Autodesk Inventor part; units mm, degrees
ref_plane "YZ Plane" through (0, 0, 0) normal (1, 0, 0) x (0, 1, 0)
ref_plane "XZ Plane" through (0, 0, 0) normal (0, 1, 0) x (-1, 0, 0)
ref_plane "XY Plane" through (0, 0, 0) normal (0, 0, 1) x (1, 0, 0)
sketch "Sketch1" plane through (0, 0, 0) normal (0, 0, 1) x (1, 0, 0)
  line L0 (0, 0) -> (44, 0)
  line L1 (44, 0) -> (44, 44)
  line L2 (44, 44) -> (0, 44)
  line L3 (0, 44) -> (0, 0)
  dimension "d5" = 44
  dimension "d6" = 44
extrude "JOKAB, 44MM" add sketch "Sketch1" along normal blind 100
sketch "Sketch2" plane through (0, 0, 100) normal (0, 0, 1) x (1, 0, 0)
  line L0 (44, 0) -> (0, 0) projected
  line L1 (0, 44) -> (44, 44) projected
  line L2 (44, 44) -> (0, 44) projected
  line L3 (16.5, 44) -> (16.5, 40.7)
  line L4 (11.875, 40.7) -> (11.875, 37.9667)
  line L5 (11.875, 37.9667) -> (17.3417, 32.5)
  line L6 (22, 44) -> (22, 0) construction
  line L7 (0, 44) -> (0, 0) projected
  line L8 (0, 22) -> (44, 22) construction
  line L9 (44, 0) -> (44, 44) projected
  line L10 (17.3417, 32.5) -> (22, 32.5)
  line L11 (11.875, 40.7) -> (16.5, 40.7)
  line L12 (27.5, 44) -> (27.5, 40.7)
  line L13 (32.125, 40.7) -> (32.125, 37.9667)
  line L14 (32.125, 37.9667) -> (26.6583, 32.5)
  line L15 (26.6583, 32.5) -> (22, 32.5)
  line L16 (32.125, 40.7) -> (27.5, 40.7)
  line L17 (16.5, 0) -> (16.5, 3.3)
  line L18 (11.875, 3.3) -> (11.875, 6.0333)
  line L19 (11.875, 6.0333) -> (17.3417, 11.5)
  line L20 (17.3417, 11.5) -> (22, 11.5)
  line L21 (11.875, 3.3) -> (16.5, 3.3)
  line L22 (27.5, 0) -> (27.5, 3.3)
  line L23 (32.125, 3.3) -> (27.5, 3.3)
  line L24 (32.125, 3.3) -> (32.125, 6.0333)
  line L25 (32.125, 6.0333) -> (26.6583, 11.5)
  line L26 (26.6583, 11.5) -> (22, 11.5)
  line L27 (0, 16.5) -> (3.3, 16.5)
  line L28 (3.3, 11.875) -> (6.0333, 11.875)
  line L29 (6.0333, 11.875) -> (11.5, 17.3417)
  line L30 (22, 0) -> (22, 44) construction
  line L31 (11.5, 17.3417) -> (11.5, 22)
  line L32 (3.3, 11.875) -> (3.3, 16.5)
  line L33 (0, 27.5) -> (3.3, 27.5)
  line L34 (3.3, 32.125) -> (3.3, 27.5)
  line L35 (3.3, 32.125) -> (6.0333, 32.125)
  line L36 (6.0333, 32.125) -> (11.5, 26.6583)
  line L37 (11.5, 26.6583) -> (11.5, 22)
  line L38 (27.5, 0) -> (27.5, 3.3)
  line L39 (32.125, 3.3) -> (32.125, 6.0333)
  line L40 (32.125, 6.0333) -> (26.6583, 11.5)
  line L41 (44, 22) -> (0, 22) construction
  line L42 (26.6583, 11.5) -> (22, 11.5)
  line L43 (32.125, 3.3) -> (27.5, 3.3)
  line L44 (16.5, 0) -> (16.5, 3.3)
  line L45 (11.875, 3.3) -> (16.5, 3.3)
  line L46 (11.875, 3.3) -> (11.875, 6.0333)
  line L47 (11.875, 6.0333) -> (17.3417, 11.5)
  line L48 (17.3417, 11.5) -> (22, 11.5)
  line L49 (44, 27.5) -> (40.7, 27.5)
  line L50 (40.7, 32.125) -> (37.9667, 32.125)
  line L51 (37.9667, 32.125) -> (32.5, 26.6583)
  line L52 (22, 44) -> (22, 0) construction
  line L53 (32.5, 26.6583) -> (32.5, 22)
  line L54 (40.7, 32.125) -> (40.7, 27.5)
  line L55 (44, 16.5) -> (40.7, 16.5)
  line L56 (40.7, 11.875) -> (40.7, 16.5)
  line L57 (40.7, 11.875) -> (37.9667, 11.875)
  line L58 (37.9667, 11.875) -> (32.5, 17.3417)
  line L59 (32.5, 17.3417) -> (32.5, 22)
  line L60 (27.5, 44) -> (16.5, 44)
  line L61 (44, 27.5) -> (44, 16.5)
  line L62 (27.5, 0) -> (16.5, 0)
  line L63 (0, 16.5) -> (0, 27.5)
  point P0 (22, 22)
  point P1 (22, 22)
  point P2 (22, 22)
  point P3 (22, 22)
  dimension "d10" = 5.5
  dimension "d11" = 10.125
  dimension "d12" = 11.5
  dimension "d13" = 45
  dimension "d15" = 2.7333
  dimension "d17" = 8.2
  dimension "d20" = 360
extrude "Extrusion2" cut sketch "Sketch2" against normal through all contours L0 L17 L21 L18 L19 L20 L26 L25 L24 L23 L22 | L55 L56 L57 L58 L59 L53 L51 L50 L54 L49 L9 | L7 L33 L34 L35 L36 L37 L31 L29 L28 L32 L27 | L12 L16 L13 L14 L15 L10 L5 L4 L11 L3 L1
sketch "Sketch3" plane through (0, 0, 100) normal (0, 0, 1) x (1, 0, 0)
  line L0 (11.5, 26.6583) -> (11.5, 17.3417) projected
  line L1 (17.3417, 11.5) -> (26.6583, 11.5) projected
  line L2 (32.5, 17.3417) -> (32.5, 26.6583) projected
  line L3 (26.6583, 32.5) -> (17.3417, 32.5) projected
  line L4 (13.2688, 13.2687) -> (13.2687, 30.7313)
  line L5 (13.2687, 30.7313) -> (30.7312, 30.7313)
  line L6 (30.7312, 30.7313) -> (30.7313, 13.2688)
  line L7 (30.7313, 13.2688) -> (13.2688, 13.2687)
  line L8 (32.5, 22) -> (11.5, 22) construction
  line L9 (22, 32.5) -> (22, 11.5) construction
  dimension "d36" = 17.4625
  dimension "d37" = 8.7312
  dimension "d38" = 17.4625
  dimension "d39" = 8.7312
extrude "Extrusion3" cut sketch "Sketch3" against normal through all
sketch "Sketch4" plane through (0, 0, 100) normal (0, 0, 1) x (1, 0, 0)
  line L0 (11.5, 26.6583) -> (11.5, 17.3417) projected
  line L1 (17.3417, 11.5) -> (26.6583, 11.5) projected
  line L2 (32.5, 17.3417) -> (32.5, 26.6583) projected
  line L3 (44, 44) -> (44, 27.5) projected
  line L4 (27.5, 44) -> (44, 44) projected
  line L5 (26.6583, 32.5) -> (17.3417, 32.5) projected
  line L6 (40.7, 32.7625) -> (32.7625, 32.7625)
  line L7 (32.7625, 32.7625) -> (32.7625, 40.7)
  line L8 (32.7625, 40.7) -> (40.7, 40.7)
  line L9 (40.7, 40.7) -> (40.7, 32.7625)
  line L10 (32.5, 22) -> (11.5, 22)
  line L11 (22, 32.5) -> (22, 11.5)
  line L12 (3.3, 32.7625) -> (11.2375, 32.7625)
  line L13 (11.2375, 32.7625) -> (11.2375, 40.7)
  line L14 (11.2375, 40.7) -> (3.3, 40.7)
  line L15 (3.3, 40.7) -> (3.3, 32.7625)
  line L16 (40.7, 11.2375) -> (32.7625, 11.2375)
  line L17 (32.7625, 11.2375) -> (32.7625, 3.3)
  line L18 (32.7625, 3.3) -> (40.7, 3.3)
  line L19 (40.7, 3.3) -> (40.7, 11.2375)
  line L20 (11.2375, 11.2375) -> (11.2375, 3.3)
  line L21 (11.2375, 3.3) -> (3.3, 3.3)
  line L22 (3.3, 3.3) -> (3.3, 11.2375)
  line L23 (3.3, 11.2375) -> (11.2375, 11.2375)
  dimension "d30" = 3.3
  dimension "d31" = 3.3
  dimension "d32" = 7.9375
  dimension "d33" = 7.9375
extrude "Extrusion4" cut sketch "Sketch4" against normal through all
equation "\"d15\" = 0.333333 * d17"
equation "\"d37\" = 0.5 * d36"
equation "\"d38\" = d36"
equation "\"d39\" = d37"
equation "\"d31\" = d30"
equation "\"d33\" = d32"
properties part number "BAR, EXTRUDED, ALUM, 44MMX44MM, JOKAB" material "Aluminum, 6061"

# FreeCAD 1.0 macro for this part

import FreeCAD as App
import Part
import Sketcher

V = App.Vector


def add_polygon(sketch, points):
    """Adds a closed chain of lines whose ends are joined by coincident constraints."""
    first, n = sketch.GeometryCount, len(points)
    for a, b in zip(points, points[1:] + points[:1]):
        sketch.addGeometry(Part.LineSegment(App.Vector(*a, 0), App.Vector(*b, 0)), False)
    for i in range(n):
        sketch.addConstraint(Sketcher.Constraint("Coincident", first + i, 2, first + (i + 1) % n, 1))

doc = App.newDocument("Part")
params = doc.addObject("Spreadsheet::Sheet", "Params")
for row, (alias, value) in enumerate([
    ("sketch1_width", "44 mm"),
    ("pad1_length", "100 mm"),
    ("sketch2_width", "11 mm"),
], start=1):
    params.set(f"A{row}", alias)
    params.set(f"B{row}", "=" + value)
    params.setAlias(f"B{row}", alias)

body = doc.addObject("PartDesign::Body", "Body")

# Sketch on XY plane
sketch1 = body.newObject("Sketcher::SketchObject", "Sketch")
sketch1.AttachmentSupport = (doc.getObject("XY_Plane"), [""])
sketch1.MapMode = "FlatFace"
add_polygon(sketch1, [(0, 44), (0, 0), (44, 0), (44, 44)])  # lines 0-3
sketch1.addConstraint(Sketcher.Constraint("Vertical", 0))
sketch1.addConstraint(Sketcher.Constraint("Horizontal", 1))
sketch1.addConstraint(Sketcher.Constraint("Vertical", 2))
sketch1.addConstraint(Sketcher.Constraint("Horizontal", 3))
sketch1.addConstraint(Sketcher.Constraint("Coincident", 0, 2, -1, 1))
sketch1.addConstraint(Sketcher.Constraint("Equal", 3, 0))
sketch1.addConstraint(Sketcher.Constraint("DistanceX", 1, 1, 1, 2, 44.0))
sketch1.setExpression("Constraints[10]", "Params.sketch1_width")
pad1 = body.newObject("PartDesign::Pad", "Pad")
pad1.Profile = sketch1
pad1.setExpression("Length", "Params.pad1_length")

# Sketch on XY plane
sketch2 = body.newObject("Sketcher::SketchObject", "Sketch001")
sketch2.AttachmentSupport = (doc.getObject("XY_Plane"), [""])
sketch2.MapMode = "FlatFace"
sketch2.AttachmentOffset = App.Placement(V(0, 0, 100), App.Rotation())
add_polygon(sketch2, [(16.5, 0), (27.5, 0), (27.5, 3.3), (32.125, 3.3), (32.125, 6.0333), (26.6583, 11.5), (17.3417, 11.5), (11.875, 6.0333), (11.875, 3.3), (16.5, 3.3)])  # lines 0-9
add_polygon(sketch2, [(40.7, 16.5), (44, 16.5), (44, 27.5), (40.7, 27.5), (40.7, 32.125), (37.9667, 32.125), (32.5, 26.6583), (32.5, 17.3417), (37.9667, 11.875), (40.7, 11.875)])  # lines 10-19
add_polygon(sketch2, [(0, 27.5), (0, 16.5), (3.3, 16.5), (3.3, 11.875), (6.0333, 11.875), (11.5, 17.3417), (11.5, 26.6583), (6.0333, 32.125), (3.3, 32.125), (3.3, 27.5)])  # lines 20-29
add_polygon(sketch2, [(27.5, 40.7), (27.5, 44), (16.5, 44), (16.5, 40.7), (11.875, 40.7), (11.875, 37.9667), (17.3417, 32.5), (26.6583, 32.5), (32.125, 37.9667), (32.125, 40.7)])  # lines 30-39
sketch2.addConstraint(Sketcher.Constraint("Horizontal", 0))
sketch2.addConstraint(Sketcher.Constraint("Vertical", 1))
sketch2.addConstraint(Sketcher.Constraint("Horizontal", 2))
sketch2.addConstraint(Sketcher.Constraint("Vertical", 3))
sketch2.addConstraint(Sketcher.Constraint("Horizontal", 5))
sketch2.addConstraint(Sketcher.Constraint("Vertical", 7))
sketch2.addConstraint(Sketcher.Constraint("Horizontal", 8))
sketch2.addConstraint(Sketcher.Constraint("Vertical", 9))
sketch2.addConstraint(Sketcher.Constraint("Horizontal", 10))
sketch2.addConstraint(Sketcher.Constraint("Vertical", 11))
sketch2.addConstraint(Sketcher.Constraint("Horizontal", 12))
sketch2.addConstraint(Sketcher.Constraint("Vertical", 13))
sketch2.addConstraint(Sketcher.Constraint("Horizontal", 14))
sketch2.addConstraint(Sketcher.Constraint("Vertical", 16))
sketch2.addConstraint(Sketcher.Constraint("Horizontal", 18))
sketch2.addConstraint(Sketcher.Constraint("Vertical", 19))
sketch2.addConstraint(Sketcher.Constraint("Vertical", 20))
sketch2.addConstraint(Sketcher.Constraint("Horizontal", 21))
sketch2.addConstraint(Sketcher.Constraint("Vertical", 22))
sketch2.addConstraint(Sketcher.Constraint("Horizontal", 23))
sketch2.addConstraint(Sketcher.Constraint("Vertical", 25))
sketch2.addConstraint(Sketcher.Constraint("Horizontal", 27))
sketch2.addConstraint(Sketcher.Constraint("Vertical", 28))
sketch2.addConstraint(Sketcher.Constraint("Horizontal", 29))
sketch2.addConstraint(Sketcher.Constraint("Vertical", 30))
sketch2.addConstraint(Sketcher.Constraint("Horizontal", 31))
sketch2.addConstraint(Sketcher.Constraint("Vertical", 32))
sketch2.addConstraint(Sketcher.Constraint("Horizontal", 33))
sketch2.addConstraint(Sketcher.Constraint("Vertical", 34))
sketch2.addConstraint(Sketcher.Constraint("Horizontal", 36))
sketch2.addConstraint(Sketcher.Constraint("Vertical", 38))
sketch2.addConstraint(Sketcher.Constraint("Horizontal", 39))
sketch2.addConstraint(Sketcher.Constraint("PointOnObject", 0, 2, -1))
sketch2.addConstraint(Sketcher.Constraint("PointOnObject", 20, 2, -2))
sketch2.addConstraint(Sketcher.Constraint("Perpendicular", 4, 6))
sketch2.addConstraint(Sketcher.Constraint("Parallel", 6, 15))
sketch2.addConstraint(Sketcher.Constraint("Perpendicular", 15, 17))
sketch2.addConstraint(Sketcher.Constraint("Perpendicular", 17, 24))
sketch2.addConstraint(Sketcher.Constraint("Perpendicular", 24, 26))
sketch2.addConstraint(Sketcher.Constraint("Parallel", 26, 35))
sketch2.addConstraint(Sketcher.Constraint("Perpendicular", 35, 37))
sketch2.addConstraint(Sketcher.Constraint("Horizontal", 3, 2, 6, 2))
sketch2.addConstraint(Sketcher.Constraint("Horizontal", 2, 2, 7, 2))
sketch2.addConstraint(Sketcher.Constraint("Horizontal", 19, 2, 20, 2))
sketch2.addConstraint(Sketcher.Constraint("Horizontal", 18, 2, 22, 2))
sketch2.addConstraint(Sketcher.Constraint("Horizontal", 16, 2, 24, 2))
sketch2.addConstraint(Sketcher.Constraint("Horizontal", 15, 2, 25, 2))
sketch2.addConstraint(Sketcher.Constraint("Horizontal", 14, 2, 26, 2))
sketch2.addConstraint(Sketcher.Constraint("Horizontal", 12, 2, 28, 2))
sketch2.addConstraint(Sketcher.Constraint("Horizontal", 34, 2, 37, 2))
sketch2.addConstraint(Sketcher.Constraint("Horizontal", 33, 2, 38, 2))
sketch2.addConstraint(Sketcher.Constraint("Vertical", 14, 2, 17, 2))
sketch2.addConstraint(Sketcher.Constraint("Vertical", 13, 2, 18, 2))
sketch2.addConstraint(Sketcher.Constraint("Vertical", 23, 2, 26, 2))
sketch2.addConstraint(Sketcher.Constraint("Vertical", 22, 2, 27, 2))
sketch2.addConstraint(Sketcher.Constraint("Vertical", 1, 2, 30, 2))
sketch2.addConstraint(Sketcher.Constraint("Vertical", 9, 2, 31, 2))
sketch2.addConstraint(Sketcher.Constraint("Vertical", 7, 2, 33, 2))
sketch2.addConstraint(Sketcher.Constraint("Vertical", 5, 2, 35, 2))
sketch2.addConstraint(Sketcher.Constraint("Vertical", 4, 2, 36, 2))
sketch2.addConstraint(Sketcher.Constraint("Equal", 2, 8))
sketch2.addConstraint(Sketcher.Constraint("Equal", 12, 21))
sketch2.addConstraint(Sketcher.Constraint("Equal", 18, 23))
sketch2.addConstraint(Sketcher.Constraint("Equal", 29, 1))
sketch2.addConstraint(Sketcher.Constraint("Equal", 27, 3))
sketch2.addConstraint(Sketcher.Constraint("Equal", 31, 11))
sketch2.addConstraint(Sketcher.Constraint("Equal", 39, 13))
sketch2.addConstraint(Sketcher.Constraint("Equal", 36, 16))
sketch2.addConstraint(Sketcher.Constraint("Equal", 13, 19))
sketch2.addConstraint(Sketcher.Constraint("Equal", 9, 30))
sketch2.addConstraint(Sketcher.Constraint("Equal", 7, 34))
sketch2.addConstraint(Sketcher.Constraint("DistanceY", -1, 1, 4, 2, 11.5))
sketch2.addConstraint(Sketcher.Constraint("DistanceY", 1, 2, 4, 2, 8.2))
sketch2.addConstraint(Sketcher.Constraint("DistanceX", 0, 1, 0, 2, 11.0))
sketch2.addConstraint(Sketcher.Constraint("DistanceX", 14, 2, 14, 1, 2.7333))
sketch2.addConstraint(Sketcher.Constraint("DistanceX", -1, 1, 10, 2, 44.0))
sketch2.addConstraint(Sketcher.Constraint("DistanceY", -1, 1, 30, 2, 44.0))
sketch2.addConstraint(Sketcher.Constraint("DistanceY", 4, 2, 10, 2, 5.0))
sketch2.addConstraint(Sketcher.Constraint("DistanceX", 30, 2, 15, 2, 5.0))
sketch2.addConstraint(Sketcher.Constraint("DistanceX", 2, 1, 2, 2, 4.625))
sketch2.setExpression("Constraints[113]", "Params.sketch2_width")
pocket1 = body.newObject("PartDesign::Pocket", "Pocket")
pocket1.Profile = sketch2
pocket1.Type = "ThroughAll"

# Sketch on XY plane
sketch3 = body.newObject("Sketcher::SketchObject", "Sketch002")
sketch3.AttachmentSupport = (doc.getObject("XY_Plane"), [""])
sketch3.MapMode = "FlatFace"
sketch3.AttachmentOffset = App.Placement(V(0, 0, 100), App.Rotation())
add_polygon(sketch3, [(13.2687, 30.7313), (13.2688, 13.2687), (30.7313, 13.2688), (30.7312, 30.7313)])  # lines 0-3
sketch3.addConstraint(Sketcher.Constraint("Vertical", 0))
sketch3.addConstraint(Sketcher.Constraint("Horizontal", 1))
sketch3.addConstraint(Sketcher.Constraint("Vertical", 2))
sketch3.addConstraint(Sketcher.Constraint("Horizontal", 3))
sketch3.addConstraint(Sketcher.Constraint("Equal", 3, 0))
sketch3.addConstraint(Sketcher.Constraint("DistanceX", 1, 1, 1, 2, 17.4625))
sketch3.addConstraint(Sketcher.Constraint("DistanceX", -1, 1, 0, 2, 13.2688))
sketch3.addConstraint(Sketcher.Constraint("DistanceY", -1, 1, 0, 2, 13.2687))
pocket2 = body.newObject("PartDesign::Pocket", "Pocket001")
pocket2.Profile = sketch3
pocket2.Type = "ThroughAll"

# Sketch on XY plane
sketch4 = body.newObject("Sketcher::SketchObject", "Sketch003")
sketch4.AttachmentSupport = (doc.getObject("XY_Plane"), [""])
sketch4.MapMode = "FlatFace"
sketch4.AttachmentOffset = App.Placement(V(0, 0, 100), App.Rotation())
add_polygon(sketch4, [(32.7625, 32.7625), (40.7, 32.7625), (40.7, 40.7), (32.7625, 40.7)])  # lines 0-3
add_polygon(sketch4, [(3.3, 40.7), (3.3, 32.7625), (11.2375, 32.7625), (11.2375, 40.7)])  # lines 4-7
add_polygon(sketch4, [(40.7, 3.3), (40.7, 11.2375), (32.7625, 11.2375), (32.7625, 3.3)])  # lines 8-11
add_polygon(sketch4, [(11.2375, 3.3), (11.2375, 11.2375), (3.3, 11.2375), (3.3, 3.3)])  # lines 12-15
sketch4.addConstraint(Sketcher.Constraint("Horizontal", 0))
sketch4.addConstraint(Sketcher.Constraint("Vertical", 1))
sketch4.addConstraint(Sketcher.Constraint("Horizontal", 2))
sketch4.addConstraint(Sketcher.Constraint("Vertical", 3))
sketch4.addConstraint(Sketcher.Constraint("Vertical", 4))
sketch4.addConstraint(Sketcher.Constraint("Horizontal", 5))
sketch4.addConstraint(Sketcher.Constraint("Vertical", 6))
sketch4.addConstraint(Sketcher.Constraint("Horizontal", 7))
sketch4.addConstraint(Sketcher.Constraint("Vertical", 8))
sketch4.addConstraint(Sketcher.Constraint("Horizontal", 9))
sketch4.addConstraint(Sketcher.Constraint("Vertical", 10))
sketch4.addConstraint(Sketcher.Constraint("Horizontal", 11))
sketch4.addConstraint(Sketcher.Constraint("Vertical", 12))
sketch4.addConstraint(Sketcher.Constraint("Horizontal", 13))
sketch4.addConstraint(Sketcher.Constraint("Vertical", 14))
sketch4.addConstraint(Sketcher.Constraint("Horizontal", 15))
sketch4.addConstraint(Sketcher.Constraint("Horizontal", 3, 2, 4, 2))
sketch4.addConstraint(Sketcher.Constraint("Horizontal", 2, 2, 6, 2))
sketch4.addConstraint(Sketcher.Constraint("Horizontal", 9, 2, 12, 2))
sketch4.addConstraint(Sketcher.Constraint("Horizontal", 11, 2, 14, 2))
sketch4.addConstraint(Sketcher.Constraint("Vertical", 1, 2, 8, 2))
sketch4.addConstraint(Sketcher.Constraint("Vertical", 3, 2, 9, 2))
sketch4.addConstraint(Sketcher.Constraint("Vertical", 6, 2, 12, 2))
sketch4.addConstraint(Sketcher.Constraint("Vertical", 7, 2, 13, 2))
sketch4.addConstraint(Sketcher.Constraint("Equal", 2, 5))
sketch4.addConstraint(Sketcher.Constraint("Equal", 15, 1))
sketch4.addConstraint(Sketcher.Constraint("Equal", 6, 8))
sketch4.addConstraint(Sketcher.Constraint("DistanceX", -1, 1, 4, 2, 3.3))
sketch4.addConstraint(Sketcher.Constraint("DistanceY", -1, 1, 10, 2, 3.3))
sketch4.addConstraint(Sketcher.Constraint("DistanceX", 0, 1, 0, 2, 7.9375))
sketch4.addConstraint(Sketcher.Constraint("DistanceX", -1, 1, 0, 2, 40.7))
sketch4.addConstraint(Sketcher.Constraint("DistanceY", -1, 1, 1, 2, 40.7))
pocket3 = body.newObject("PartDesign::Pocket", "Pocket002")
pocket3.Profile = sketch4
pocket3.Type = "ThroughAll"

doc.recompute()
